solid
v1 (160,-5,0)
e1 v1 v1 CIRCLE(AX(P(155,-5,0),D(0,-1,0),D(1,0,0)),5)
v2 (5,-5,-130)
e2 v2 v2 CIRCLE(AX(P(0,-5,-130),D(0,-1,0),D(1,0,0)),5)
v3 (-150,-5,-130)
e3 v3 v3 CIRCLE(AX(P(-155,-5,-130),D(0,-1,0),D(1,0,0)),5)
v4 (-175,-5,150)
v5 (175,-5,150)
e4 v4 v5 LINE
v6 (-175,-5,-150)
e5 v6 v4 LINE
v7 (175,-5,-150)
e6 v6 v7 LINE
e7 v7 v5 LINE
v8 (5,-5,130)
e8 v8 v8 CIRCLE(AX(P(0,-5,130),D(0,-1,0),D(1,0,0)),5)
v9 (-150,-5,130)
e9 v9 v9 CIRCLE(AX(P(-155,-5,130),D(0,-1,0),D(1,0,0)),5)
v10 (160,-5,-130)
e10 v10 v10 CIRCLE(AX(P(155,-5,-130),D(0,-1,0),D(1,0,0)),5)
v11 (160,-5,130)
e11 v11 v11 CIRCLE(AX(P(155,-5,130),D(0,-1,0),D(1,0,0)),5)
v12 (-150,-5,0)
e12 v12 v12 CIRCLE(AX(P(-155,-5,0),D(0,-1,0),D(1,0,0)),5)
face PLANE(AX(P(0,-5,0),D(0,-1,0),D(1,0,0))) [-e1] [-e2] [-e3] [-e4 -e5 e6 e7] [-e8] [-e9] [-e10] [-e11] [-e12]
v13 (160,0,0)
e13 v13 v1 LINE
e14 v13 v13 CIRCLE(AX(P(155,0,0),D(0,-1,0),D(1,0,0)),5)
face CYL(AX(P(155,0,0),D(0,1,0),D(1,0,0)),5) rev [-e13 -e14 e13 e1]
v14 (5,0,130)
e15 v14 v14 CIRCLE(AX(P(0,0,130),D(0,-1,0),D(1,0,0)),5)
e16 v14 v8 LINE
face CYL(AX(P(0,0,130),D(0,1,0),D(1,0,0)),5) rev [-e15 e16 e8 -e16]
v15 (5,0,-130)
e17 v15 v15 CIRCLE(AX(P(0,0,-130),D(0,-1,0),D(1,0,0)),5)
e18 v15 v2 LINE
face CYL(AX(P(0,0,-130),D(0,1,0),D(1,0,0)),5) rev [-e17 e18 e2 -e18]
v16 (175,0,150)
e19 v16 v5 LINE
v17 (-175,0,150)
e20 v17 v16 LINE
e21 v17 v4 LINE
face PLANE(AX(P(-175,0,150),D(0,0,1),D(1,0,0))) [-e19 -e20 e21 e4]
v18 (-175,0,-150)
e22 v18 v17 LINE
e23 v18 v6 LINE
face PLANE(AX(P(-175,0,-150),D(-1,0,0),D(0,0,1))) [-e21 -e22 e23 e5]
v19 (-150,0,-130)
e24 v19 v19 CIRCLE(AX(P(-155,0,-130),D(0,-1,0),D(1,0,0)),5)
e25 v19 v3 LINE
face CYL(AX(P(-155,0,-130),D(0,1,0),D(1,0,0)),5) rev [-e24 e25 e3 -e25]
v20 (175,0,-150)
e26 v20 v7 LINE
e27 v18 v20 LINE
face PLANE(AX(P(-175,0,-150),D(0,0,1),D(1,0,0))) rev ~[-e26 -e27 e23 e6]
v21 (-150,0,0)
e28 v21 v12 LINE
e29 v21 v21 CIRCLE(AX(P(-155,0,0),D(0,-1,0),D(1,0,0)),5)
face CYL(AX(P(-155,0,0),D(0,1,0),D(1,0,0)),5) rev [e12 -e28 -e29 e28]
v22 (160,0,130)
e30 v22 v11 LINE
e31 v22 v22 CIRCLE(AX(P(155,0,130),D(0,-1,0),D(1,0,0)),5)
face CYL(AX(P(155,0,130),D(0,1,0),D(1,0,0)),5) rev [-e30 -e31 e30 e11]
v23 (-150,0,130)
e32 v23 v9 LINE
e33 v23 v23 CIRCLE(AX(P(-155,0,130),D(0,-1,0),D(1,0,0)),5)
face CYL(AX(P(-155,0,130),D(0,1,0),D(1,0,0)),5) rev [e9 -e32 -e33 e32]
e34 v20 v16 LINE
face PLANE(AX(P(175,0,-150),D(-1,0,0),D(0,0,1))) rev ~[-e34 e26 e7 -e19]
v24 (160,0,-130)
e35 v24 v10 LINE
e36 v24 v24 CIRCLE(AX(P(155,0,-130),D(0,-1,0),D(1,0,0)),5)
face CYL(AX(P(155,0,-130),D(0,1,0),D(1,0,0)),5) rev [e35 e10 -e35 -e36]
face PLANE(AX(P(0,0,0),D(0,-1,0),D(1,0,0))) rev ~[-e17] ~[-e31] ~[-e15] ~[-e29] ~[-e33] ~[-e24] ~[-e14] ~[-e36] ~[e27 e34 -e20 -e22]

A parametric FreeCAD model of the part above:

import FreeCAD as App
import Part
import Sketcher
from FreeCAD import Vector


def add_polygon(sketch, points):
    """Adds a closed chain of lines whose ends are joined by coincident constraints."""
    first, n = sketch.GeometryCount, len(points)
    for a, b in zip(points, points[1:] + points[:1]):
        sketch.addGeometry(Part.LineSegment(App.Vector(*a, 0), App.Vector(*b, 0)), False)
    for i in range(n):
        sketch.addConstraint(Sketcher.Constraint("Coincident", first + i, 2, first + (i + 1) % n, 1))

doc = App.newDocument("Part")
params = doc.addObject("Spreadsheet::Sheet", "Params")
for row, (alias, value) in enumerate([
    ("sketch1_diameter", "10 mm"),
    ("sketch1_width", "350 mm"),
    ("sketch1_height", "300 mm"),
    ("pad1_length", "5 mm"),
], start=1):
    params.set(f"A{row}", alias)
    params.set(f"B{row}", "=" + value)
    params.setAlias(f"B{row}", alias)

body = doc.addObject("PartDesign::Body", "Body")

sketch1 = body.newObject("Sketcher::SketchObject", "Sketch")
sketch1.AttachmentSupport = (doc.getObject("XZ_Plane"), [""])
sketch1.MapMode = "FlatFace"
add_polygon(sketch1, [(-175, 150), (-175, -150), (175, -150), (175, 150)])
sketch1.addGeometry(Part.Circle(Vector(-155, -130, 0), Vector(0, 0, 1), 5), False)
sketch1.addGeometry(Part.Circle(Vector(0, -130, 0), Vector(0, 0, 1), 5), False)
sketch1.addGeometry(Part.Circle(Vector(155, -130, 0), Vector(0, 0, 1), 5), False)
sketch1.addGeometry(Part.Circle(Vector(-155, 0, 0), Vector(0, 0, 1), 5), False)
sketch1.addGeometry(Part.Circle(Vector(-155, 130, 0), Vector(0, 0, 1), 5), False)
sketch1.addGeometry(Part.Circle(Vector(155, 0, 0), Vector(0, 0, 1), 5), False)
sketch1.addGeometry(Part.Circle(Vector(0, 130, 0), Vector(0, 0, 1), 5), False)
sketch1.addGeometry(Part.Circle(Vector(155, 130, 0), Vector(0, 0, 1), 5), False)
sketch1.addConstraint([
    Sketcher.Constraint("Vertical", 0),
    Sketcher.Constraint("Horizontal", 1),
    Sketcher.Constraint("Vertical", 2),
    Sketcher.Constraint("Horizontal", 3),
    Sketcher.Constraint("Equal", 4, 5),
    Sketcher.Constraint("Equal", 5, 6),
    Sketcher.Constraint("Equal", 6, 7),
    Sketcher.Constraint("Equal", 7, 8),
    Sketcher.Constraint("Equal", 8, 9),
    Sketcher.Constraint("Equal", 9, 10),
    Sketcher.Constraint("Equal", 10, 11),
    Sketcher.Constraint("Symmetric", 6, 3, 8, 3, -1, 1),
    Sketcher.Constraint("Symmetric", 7, 3, 9, 3, -1, 1),
    Sketcher.Constraint("Symmetric", 5, 3, 10, 3, -1, 1),
    Sketcher.Constraint("Symmetric", 4, 3, 11, 3, -1, 1),
    Sketcher.Constraint("Symmetric", 0, 2, 2, 2, -1, 1),
    Sketcher.Constraint("Symmetric", 4, 3, 6, 3, -2),
    Sketcher.Constraint("PointOnObject", 5, 3, -2),
    Sketcher.Constraint("PointOnObject", 7, 3, -1),
    Sketcher.Constraint("Horizontal", 4, 3, 5, 3),
    Sketcher.Constraint("Vertical", 4, 3, 7, 3),
    Sketcher.Constraint("Diameter", 4, 10.0),
    Sketcher.Constraint("DistanceX", 1, 1, 1, 2, 350.0),
    Sketcher.Constraint("DistanceY", 0, 2, 0, 1, 300.0),
    Sketcher.Constraint("DistanceX", 4, 3, -1, 1, 155.0),
    Sketcher.Constraint("DistanceY", 4, 3, -1, 1, 130.0),
])
sketch1.setExpression("Constraints[25]", "Params.sketch1_diameter")
sketch1.setExpression("Constraints[26]", "Params.sketch1_width")
sketch1.setExpression("Constraints[27]", "Params.sketch1_height")
pad1 = body.newObject("PartDesign::Pad", "Pad")
pad1.Profile = sketch1
pad1.setExpression("Length", "Params.pad1_length")

doc.recompute()
